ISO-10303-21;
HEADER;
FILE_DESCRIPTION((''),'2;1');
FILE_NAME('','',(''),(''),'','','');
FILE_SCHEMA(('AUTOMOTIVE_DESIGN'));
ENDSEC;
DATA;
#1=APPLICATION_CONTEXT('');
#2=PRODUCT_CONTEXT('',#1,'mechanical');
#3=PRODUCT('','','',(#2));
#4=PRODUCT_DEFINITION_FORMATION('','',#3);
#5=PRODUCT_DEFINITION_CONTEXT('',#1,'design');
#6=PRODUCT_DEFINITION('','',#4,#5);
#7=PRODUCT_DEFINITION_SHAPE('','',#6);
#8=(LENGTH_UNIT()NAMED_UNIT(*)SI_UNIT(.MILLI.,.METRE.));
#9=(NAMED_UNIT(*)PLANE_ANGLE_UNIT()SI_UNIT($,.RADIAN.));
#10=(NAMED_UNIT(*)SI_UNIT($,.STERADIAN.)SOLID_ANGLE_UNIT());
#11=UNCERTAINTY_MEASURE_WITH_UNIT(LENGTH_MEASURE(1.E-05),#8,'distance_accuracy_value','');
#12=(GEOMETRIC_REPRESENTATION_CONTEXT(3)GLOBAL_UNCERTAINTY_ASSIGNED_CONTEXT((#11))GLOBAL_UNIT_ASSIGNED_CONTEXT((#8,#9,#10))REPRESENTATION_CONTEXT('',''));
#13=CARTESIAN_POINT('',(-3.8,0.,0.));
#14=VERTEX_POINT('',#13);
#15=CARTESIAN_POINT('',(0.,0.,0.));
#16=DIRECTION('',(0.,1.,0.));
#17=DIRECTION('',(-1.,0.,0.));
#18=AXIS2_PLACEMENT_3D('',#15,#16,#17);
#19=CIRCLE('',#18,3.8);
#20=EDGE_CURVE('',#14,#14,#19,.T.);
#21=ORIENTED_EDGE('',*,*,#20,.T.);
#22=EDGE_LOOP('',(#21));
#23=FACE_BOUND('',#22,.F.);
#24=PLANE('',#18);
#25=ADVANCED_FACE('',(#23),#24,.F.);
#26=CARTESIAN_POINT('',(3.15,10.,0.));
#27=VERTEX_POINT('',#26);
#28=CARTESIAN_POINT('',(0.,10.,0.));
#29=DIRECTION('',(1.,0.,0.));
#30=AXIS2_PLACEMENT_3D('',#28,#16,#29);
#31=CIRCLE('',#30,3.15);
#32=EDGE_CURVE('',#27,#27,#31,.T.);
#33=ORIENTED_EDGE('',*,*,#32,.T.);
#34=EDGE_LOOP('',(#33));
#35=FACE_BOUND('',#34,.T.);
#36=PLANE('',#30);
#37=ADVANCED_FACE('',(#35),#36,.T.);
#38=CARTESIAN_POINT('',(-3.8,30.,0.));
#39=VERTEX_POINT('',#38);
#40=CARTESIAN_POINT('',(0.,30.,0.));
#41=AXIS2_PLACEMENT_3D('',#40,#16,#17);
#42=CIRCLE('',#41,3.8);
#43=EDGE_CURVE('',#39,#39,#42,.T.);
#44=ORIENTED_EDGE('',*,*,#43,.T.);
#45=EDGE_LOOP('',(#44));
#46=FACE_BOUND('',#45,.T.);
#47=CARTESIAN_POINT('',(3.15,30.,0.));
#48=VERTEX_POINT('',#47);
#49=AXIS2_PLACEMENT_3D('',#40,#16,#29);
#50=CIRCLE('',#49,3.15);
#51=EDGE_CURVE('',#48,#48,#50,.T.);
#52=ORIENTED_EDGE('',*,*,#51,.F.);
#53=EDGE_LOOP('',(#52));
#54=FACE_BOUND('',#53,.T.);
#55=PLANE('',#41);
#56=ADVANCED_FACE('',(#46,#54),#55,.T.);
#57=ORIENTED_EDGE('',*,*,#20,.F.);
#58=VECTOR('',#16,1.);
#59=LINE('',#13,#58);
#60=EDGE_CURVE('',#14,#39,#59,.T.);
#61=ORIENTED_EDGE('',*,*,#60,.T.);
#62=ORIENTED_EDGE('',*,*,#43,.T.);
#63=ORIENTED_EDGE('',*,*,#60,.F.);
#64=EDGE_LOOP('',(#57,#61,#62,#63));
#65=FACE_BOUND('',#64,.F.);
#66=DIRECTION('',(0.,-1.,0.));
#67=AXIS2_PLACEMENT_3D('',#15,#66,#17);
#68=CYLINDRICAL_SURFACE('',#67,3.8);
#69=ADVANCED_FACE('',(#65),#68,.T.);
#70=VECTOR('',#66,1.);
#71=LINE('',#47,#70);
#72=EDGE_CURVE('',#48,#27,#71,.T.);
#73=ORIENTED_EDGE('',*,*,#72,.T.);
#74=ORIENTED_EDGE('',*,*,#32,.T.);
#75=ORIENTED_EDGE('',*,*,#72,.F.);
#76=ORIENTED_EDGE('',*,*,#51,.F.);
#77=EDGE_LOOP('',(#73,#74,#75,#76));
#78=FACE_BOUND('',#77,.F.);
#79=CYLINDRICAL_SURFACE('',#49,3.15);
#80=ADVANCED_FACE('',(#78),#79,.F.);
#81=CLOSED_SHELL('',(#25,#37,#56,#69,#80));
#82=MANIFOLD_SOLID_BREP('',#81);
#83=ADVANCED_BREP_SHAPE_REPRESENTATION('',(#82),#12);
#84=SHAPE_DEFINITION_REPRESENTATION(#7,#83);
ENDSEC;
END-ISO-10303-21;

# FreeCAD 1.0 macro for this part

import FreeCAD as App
import Part
import Sketcher

doc = App.newDocument("Part")
params = doc.addObject("Spreadsheet::Sheet", "Params")
for row, (alias, value) in enumerate([
    ("sketch1_diameter", "7.6 mm"),
    ("pad1_length", "30 mm"),
    ("sketch2_diameter", "6.3 mm"),
    ("pocket1_length", "20 mm"),
], start=1):
    params.set(f"A{row}", alias)
    params.set(f"B{row}", "=" + value)
    params.setAlias(f"B{row}", alias)

body = doc.addObject("PartDesign::Body", "Body")

sketch1 = body.newObject("Sketcher::SketchObject", "Sketch")
sketch1.AttachmentSupport = (doc.getObject("XZ_Plane"), [""])
sketch1.MapMode = "FlatFace"
sketch1.addGeometry(Part.Circle(App.Vector(0, 0, 0), App.Vector(0, 0, 1), 3.8), False)
sketch1.addConstraint([
    Sketcher.Constraint("Coincident", 0, 3, -1, 1),
    Sketcher.Constraint("Diameter", 0, 7.6),
])
sketch1.setExpression("Constraints[1]", "Params.sketch1_diameter")
pad1 = body.newObject("PartDesign::Pad", "Pad")
pad1.Profile = sketch1
pad1.setExpression("Length", "Params.pad1_length")
pad1.Reversed = True

sketch2 = body.newObject("Sketcher::SketchObject", "Sketch001")
sketch2.AttachmentSupport = (doc.getObject("XZ_Plane"), [""])
sketch2.MapMode = "FlatFace"
sketch2.AttachmentOffset = App.Placement(App.Vector(0, 0, -30), App.Rotation())
sketch2.addGeometry(Part.Circle(App.Vector(0, 0, 0), App.Vector(0, 0, 1), 3.1), False)
sketch2.addConstraint([
    Sketcher.Constraint("Coincident", 0, 3, -1, 1),
    Sketcher.Constraint("Diameter", 0, 6.3),
])
sketch2.setExpression("Constraints[1]", "Params.sketch2_diameter")
pocket1 = body.newObject("PartDesign::Pocket", "Pocket")
pocket1.Profile = sketch2
pocket1.setExpression("Length", "Params.pocket1_length")
pocket1.Reversed = True

doc.recompute()
